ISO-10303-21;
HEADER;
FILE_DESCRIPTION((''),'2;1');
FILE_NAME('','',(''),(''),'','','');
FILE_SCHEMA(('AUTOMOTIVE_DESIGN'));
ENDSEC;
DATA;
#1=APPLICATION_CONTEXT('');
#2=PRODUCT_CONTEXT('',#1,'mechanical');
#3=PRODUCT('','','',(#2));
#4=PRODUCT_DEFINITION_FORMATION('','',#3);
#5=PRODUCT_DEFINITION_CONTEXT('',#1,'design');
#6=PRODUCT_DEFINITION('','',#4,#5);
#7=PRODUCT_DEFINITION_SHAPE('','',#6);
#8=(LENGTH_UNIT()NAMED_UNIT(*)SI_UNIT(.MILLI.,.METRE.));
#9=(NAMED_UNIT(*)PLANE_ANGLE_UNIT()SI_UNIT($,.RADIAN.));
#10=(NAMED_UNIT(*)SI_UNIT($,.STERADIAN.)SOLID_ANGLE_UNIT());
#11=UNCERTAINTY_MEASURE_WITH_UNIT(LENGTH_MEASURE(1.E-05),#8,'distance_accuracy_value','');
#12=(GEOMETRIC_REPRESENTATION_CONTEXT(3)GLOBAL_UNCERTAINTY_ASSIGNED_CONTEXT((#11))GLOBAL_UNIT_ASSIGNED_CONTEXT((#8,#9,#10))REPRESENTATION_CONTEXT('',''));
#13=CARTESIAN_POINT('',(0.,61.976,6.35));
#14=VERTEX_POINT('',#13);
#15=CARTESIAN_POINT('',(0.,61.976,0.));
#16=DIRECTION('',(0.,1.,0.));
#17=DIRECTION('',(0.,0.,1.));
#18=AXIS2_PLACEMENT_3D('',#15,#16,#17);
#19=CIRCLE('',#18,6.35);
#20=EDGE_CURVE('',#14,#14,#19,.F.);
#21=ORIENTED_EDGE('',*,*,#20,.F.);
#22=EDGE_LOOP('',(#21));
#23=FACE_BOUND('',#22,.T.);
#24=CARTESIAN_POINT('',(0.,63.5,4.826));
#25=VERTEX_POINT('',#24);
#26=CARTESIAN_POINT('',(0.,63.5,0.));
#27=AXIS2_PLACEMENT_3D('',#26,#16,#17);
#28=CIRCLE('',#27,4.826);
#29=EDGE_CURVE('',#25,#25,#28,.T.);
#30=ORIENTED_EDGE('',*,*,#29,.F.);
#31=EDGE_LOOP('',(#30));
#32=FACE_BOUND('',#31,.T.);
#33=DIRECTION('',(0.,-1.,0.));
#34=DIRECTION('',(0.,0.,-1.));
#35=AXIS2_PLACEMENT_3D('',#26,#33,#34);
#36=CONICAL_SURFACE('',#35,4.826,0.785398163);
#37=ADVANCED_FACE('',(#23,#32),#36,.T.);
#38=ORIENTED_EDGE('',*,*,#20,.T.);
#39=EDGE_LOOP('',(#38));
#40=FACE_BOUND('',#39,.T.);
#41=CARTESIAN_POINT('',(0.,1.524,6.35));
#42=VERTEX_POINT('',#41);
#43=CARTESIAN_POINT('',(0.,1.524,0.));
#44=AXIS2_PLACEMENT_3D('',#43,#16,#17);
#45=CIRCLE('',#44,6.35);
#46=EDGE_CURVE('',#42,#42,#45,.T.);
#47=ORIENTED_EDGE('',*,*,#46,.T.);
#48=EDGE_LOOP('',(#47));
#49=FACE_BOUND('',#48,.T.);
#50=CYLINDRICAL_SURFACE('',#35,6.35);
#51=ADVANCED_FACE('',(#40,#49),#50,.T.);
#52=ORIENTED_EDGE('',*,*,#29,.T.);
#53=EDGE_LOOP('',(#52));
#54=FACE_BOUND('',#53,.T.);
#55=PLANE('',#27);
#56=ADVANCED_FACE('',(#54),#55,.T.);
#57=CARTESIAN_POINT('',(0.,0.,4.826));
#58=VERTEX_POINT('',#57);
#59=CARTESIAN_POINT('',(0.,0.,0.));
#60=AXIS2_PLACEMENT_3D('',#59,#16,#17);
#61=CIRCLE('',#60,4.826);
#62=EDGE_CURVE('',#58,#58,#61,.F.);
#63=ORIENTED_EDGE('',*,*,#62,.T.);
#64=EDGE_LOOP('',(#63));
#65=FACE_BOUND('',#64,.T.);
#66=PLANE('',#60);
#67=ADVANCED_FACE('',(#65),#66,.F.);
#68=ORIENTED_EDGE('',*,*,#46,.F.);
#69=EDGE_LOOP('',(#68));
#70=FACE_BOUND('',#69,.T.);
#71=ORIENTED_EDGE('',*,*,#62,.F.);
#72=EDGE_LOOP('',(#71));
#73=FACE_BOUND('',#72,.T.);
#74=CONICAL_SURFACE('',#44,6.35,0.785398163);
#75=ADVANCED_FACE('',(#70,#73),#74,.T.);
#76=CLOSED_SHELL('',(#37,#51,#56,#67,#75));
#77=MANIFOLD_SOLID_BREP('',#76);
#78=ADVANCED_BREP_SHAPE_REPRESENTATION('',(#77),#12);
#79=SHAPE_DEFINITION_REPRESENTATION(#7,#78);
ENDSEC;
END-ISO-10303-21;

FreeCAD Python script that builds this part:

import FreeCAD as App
import Part
import Sketcher

V = App.Vector
Q = App.Units.Quantity


def edges_at(feature, points):
    """Names of the edges that pass closest to the given points."""
    edges = feature.Shape.Edges
    near = lambda p: min(range(len(edges)), key=lambda i: edges[i].distToShape(Part.Vertex(*p))[0])
    return sorted({f"Edge{near(p) + 1}" for p in points})

doc = App.newDocument("Part")
body = doc.addObject("PartDesign::Body", "Body")

# Sketch on XZ plane
sketch1 = body.newObject("Sketcher::SketchObject", "Sketch")
sketch1.AttachmentSupport = (doc.getObject("XZ_Plane"), [""])
sketch1.MapMode = "FlatFace"
sketch1.addGeometry(Part.Circle(V(0, 0, 0), V(0, 0, 1), 6), False)
sketch1.addConstraint([
    Sketcher.Constraint("Coincident", 0, 3, -1, 1),
    Sketcher.Constraint("Diameter", 0, Q("0.5 in")),
])
pad1 = body.newObject("PartDesign::Pad", "Pad")
pad1.Profile = sketch1
pad1.Length = Q("2.5 in")
pad1.Reversed = True
doc.recompute()

chamfer = body.newObject("PartDesign::Chamfer", "Chamfer")
chamfer.Base = (pad1, edges_at(pad1, [(-6.35, 0, 0), (-6.35, 63.5, 0)]))
chamfer.Size = Q("0.06 in")

doc.recompute()
